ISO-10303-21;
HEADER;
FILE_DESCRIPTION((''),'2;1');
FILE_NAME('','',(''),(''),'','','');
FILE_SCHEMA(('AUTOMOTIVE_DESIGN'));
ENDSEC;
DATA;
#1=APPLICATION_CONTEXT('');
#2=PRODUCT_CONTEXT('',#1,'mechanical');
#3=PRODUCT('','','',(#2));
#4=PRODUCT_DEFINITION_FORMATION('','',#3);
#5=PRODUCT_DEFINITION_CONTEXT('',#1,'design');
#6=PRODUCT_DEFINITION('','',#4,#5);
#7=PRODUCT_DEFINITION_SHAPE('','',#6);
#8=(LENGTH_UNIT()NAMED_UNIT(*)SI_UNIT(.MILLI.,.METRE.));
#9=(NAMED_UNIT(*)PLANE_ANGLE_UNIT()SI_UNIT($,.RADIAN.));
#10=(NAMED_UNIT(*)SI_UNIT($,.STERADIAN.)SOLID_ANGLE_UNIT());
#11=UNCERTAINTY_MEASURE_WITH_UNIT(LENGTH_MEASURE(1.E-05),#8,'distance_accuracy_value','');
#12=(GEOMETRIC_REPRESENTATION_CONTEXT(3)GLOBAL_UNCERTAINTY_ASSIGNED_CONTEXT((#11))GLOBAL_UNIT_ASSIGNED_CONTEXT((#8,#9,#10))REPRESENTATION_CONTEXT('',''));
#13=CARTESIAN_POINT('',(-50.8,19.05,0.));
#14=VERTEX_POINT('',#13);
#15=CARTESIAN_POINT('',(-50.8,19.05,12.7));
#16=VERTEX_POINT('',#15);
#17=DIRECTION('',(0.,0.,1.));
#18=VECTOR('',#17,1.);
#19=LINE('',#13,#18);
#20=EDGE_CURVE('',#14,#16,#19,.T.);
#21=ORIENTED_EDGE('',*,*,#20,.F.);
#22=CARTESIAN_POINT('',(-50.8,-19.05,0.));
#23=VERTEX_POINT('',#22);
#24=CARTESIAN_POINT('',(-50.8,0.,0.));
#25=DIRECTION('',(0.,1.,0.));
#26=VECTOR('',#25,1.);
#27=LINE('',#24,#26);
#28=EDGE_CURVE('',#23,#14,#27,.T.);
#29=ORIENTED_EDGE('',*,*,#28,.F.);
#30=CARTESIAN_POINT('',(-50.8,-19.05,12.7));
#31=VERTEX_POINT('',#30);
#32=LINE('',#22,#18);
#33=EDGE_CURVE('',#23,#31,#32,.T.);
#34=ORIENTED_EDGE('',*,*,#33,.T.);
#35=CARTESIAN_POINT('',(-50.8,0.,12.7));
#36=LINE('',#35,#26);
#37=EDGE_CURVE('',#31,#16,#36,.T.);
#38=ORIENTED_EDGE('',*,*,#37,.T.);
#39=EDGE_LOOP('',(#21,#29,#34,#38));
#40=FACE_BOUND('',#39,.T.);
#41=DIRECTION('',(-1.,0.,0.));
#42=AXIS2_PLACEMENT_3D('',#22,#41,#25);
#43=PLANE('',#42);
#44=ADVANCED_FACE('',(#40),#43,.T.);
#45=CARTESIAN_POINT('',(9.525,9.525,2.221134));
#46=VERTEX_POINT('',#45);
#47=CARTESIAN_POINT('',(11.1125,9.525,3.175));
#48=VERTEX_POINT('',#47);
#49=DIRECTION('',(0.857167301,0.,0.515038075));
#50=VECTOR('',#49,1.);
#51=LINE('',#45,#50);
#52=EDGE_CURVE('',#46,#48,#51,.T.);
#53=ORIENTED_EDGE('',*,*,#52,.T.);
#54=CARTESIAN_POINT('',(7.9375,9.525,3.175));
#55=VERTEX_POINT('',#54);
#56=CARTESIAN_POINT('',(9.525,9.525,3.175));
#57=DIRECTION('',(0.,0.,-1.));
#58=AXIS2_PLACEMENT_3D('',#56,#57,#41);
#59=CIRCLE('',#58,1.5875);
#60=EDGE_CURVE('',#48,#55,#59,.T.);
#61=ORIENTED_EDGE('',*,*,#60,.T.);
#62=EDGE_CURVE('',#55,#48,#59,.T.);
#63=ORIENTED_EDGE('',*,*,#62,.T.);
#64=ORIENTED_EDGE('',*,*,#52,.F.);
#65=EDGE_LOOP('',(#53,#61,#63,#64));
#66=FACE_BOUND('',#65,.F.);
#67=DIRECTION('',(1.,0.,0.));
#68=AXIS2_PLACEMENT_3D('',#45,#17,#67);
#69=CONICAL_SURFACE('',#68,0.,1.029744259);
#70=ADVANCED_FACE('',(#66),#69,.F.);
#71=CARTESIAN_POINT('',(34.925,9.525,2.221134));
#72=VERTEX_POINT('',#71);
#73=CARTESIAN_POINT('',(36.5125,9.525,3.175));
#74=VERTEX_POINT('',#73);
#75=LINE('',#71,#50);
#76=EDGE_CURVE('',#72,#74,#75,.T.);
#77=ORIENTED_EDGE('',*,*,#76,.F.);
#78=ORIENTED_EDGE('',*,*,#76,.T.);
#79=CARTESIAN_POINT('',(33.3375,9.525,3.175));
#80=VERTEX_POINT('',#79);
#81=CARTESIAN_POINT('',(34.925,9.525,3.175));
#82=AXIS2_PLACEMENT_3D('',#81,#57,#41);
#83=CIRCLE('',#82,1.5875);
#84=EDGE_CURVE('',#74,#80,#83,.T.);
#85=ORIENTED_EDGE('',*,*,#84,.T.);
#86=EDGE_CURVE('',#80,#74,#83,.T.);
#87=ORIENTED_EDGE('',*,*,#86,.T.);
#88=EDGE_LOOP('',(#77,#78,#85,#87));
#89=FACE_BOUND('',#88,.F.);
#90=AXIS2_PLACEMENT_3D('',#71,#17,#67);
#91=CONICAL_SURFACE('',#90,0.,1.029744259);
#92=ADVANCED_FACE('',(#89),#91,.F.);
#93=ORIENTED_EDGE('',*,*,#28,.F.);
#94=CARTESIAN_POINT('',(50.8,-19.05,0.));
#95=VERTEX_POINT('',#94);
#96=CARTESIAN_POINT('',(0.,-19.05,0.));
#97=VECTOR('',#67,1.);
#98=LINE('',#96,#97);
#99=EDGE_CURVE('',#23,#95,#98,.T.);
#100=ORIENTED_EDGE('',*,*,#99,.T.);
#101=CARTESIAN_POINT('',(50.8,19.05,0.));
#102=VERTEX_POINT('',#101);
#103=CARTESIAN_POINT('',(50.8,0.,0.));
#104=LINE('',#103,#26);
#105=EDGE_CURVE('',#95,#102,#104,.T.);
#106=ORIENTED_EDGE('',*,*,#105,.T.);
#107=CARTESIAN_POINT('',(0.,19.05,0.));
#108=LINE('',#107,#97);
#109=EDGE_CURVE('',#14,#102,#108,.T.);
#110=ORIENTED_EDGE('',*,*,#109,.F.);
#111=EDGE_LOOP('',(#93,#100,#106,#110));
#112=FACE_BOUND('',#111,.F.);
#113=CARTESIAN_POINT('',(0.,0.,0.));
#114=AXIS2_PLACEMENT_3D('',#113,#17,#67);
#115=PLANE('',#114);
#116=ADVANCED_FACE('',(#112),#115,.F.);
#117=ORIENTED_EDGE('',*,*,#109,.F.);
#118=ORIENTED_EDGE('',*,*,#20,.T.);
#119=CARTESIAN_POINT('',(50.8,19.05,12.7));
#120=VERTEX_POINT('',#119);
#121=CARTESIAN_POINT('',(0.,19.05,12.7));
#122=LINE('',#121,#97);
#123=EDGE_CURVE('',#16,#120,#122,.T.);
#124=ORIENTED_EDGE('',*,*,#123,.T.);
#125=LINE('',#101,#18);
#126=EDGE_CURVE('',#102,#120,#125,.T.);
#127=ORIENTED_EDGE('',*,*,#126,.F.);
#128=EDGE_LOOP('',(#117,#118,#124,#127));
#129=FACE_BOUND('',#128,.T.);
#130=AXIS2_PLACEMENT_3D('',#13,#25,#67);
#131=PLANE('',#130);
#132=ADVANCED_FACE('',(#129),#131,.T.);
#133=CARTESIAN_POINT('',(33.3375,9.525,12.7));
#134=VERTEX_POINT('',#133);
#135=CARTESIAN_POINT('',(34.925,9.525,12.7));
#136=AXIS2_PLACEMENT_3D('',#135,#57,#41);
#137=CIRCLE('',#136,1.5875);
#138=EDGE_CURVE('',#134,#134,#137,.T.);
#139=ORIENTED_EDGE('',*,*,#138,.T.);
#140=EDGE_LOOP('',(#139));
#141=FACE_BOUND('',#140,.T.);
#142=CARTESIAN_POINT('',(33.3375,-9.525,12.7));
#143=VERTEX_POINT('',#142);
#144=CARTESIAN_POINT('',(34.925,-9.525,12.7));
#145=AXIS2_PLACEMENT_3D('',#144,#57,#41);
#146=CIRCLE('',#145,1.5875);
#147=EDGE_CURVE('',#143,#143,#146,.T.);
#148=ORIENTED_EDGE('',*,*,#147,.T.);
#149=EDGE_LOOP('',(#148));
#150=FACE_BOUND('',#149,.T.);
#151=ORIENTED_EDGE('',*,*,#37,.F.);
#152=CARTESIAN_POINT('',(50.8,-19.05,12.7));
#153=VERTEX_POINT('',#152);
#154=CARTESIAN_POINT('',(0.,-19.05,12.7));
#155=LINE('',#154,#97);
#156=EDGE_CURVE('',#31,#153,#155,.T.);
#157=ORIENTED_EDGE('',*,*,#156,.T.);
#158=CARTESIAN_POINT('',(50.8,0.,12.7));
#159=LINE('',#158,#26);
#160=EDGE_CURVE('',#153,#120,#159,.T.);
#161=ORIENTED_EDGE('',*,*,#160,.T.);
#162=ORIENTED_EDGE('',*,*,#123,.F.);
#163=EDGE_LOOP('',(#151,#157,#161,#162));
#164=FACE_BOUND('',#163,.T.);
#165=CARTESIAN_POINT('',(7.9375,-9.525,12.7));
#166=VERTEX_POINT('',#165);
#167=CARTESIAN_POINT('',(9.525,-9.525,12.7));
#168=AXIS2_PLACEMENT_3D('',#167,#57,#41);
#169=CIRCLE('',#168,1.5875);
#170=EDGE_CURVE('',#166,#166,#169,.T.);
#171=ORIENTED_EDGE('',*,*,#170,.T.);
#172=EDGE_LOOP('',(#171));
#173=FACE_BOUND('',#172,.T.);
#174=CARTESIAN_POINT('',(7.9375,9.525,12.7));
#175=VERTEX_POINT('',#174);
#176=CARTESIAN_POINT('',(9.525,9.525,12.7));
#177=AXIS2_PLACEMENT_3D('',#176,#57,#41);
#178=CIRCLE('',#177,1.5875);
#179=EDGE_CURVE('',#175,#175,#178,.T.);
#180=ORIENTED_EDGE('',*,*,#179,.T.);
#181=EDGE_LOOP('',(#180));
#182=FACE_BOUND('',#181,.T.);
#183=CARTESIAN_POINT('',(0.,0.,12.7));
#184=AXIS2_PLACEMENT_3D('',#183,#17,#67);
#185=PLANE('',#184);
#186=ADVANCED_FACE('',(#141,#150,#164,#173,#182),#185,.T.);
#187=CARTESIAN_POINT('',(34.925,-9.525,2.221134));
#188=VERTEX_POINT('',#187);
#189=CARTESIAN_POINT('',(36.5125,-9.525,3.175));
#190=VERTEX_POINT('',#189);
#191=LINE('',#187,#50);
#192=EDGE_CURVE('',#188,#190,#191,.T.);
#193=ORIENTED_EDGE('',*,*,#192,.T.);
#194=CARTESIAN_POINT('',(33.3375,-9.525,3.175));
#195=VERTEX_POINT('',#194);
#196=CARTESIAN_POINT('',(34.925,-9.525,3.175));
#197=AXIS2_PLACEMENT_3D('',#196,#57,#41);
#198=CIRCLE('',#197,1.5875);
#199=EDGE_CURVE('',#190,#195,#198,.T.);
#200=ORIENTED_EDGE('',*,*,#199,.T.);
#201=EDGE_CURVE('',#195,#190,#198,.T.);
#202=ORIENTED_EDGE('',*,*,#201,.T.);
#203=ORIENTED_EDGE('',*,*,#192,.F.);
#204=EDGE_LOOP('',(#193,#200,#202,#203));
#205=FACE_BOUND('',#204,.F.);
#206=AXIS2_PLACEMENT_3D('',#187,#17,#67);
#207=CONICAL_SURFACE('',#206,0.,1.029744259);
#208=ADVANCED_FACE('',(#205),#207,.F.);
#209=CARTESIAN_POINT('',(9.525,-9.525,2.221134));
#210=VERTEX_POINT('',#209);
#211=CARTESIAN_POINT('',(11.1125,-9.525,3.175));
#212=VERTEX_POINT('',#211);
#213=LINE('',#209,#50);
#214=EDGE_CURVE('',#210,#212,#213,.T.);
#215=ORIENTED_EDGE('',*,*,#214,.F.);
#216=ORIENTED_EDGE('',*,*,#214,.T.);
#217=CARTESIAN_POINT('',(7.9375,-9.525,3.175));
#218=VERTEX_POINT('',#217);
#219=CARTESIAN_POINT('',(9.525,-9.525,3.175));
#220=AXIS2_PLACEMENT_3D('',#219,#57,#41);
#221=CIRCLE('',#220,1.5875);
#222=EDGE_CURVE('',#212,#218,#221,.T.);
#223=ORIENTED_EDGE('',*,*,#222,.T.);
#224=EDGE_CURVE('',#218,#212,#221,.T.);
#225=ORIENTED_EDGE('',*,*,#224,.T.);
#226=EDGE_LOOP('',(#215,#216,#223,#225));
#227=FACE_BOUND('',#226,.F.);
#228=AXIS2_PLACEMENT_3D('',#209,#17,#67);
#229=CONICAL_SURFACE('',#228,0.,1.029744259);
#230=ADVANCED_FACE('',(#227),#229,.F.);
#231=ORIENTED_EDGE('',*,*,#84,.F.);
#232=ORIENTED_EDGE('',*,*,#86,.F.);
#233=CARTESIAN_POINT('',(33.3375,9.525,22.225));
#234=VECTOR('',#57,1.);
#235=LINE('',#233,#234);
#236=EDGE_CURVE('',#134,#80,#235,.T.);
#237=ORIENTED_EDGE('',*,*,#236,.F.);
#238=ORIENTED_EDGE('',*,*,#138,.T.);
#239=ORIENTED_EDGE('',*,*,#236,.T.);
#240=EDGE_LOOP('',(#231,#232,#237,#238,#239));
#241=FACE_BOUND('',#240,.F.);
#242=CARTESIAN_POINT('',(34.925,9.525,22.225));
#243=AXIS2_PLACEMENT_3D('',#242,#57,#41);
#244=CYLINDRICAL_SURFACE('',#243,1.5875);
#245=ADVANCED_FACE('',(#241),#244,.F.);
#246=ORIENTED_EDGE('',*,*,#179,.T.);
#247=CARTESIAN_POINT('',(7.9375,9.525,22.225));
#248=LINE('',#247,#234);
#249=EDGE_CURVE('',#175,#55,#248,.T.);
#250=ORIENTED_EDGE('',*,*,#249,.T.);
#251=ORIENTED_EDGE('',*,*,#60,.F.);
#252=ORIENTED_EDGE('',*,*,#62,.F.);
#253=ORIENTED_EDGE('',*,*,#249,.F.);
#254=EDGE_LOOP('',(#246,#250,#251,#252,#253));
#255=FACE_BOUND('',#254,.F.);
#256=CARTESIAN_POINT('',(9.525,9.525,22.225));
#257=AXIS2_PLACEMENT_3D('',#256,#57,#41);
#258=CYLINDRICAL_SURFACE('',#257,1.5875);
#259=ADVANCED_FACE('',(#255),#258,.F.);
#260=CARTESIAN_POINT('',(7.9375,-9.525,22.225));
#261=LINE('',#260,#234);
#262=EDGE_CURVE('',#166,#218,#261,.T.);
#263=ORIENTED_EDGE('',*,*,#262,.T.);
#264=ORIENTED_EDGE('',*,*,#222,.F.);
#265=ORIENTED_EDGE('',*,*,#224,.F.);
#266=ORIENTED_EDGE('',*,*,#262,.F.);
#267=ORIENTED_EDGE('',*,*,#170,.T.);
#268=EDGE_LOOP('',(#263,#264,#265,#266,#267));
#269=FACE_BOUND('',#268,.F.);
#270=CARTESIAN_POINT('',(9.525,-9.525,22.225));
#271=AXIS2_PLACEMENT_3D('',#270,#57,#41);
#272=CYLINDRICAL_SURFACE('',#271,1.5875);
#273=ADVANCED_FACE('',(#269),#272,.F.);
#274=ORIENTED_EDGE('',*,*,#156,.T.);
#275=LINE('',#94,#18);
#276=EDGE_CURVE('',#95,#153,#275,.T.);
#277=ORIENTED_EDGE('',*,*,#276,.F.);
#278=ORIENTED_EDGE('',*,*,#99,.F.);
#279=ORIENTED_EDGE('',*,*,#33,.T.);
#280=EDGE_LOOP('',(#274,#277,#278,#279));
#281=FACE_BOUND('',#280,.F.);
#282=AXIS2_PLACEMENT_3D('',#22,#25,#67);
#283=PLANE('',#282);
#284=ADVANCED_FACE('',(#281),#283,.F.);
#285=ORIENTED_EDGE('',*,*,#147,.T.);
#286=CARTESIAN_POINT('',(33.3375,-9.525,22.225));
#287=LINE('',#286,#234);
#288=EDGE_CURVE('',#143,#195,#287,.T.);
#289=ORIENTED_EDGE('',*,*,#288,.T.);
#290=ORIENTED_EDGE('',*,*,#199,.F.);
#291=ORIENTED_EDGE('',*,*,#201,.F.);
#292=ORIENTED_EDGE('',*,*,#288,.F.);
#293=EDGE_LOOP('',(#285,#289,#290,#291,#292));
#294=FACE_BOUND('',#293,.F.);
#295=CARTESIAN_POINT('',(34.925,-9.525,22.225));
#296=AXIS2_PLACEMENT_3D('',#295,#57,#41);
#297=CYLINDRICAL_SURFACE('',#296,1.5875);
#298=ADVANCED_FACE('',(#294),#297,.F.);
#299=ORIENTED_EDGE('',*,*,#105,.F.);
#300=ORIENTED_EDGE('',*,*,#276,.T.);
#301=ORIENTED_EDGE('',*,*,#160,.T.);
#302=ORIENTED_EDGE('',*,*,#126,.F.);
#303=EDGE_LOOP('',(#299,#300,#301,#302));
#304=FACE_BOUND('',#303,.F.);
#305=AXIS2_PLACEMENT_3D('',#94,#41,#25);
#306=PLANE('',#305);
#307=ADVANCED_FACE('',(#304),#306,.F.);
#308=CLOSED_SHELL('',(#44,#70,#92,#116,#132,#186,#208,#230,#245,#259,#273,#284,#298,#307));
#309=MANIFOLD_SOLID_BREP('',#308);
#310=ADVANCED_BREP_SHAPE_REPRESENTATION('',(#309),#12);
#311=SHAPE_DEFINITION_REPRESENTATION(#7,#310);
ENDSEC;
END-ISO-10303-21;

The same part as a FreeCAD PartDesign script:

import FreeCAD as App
import Part
import Sketcher
from FreeCAD import Vector
Q = App.Units.Quantity


def add_polygon(sketch, points):
    """Adds a closed chain of lines whose ends are joined by coincident constraints."""
    first, n = sketch.GeometryCount, len(points)
    for a, b in zip(points, points[1:] + points[:1]):
        sketch.addGeometry(Part.LineSegment(App.Vector(*a, 0), App.Vector(*b, 0)), False)
    for i in range(n):
        sketch.addConstraint(Sketcher.Constraint("Coincident", first + i, 2, first + (i + 1) % n, 1))

doc = App.newDocument("Part")
body = doc.addObject("PartDesign::Body", "Body")

# Sketch on XY plane
sketch1 = body.newObject("Sketcher::SketchObject", "Sketch")
sketch1.AttachmentSupport = (doc.getObject("XY_Plane"), [""])
sketch1.MapMode = "FlatFace"
add_polygon(sketch1, [(-51, 19), (-51, -19), (51, -19), (51, 19)])  # lines 0-3
sketch1.addConstraint(Sketcher.Constraint("Vertical", 0))
sketch1.addConstraint(Sketcher.Constraint("Horizontal", 1))
sketch1.addConstraint(Sketcher.Constraint("Vertical", 2))
sketch1.addConstraint(Sketcher.Constraint("Horizontal", 3))
sketch1.addConstraint(Sketcher.Constraint("Symmetric", 0, 2, 2, 2, -1, 1))
sketch1.addConstraint(Sketcher.Constraint("DistanceX", 1, 1, 1, 2, Q("4 in")))
sketch1.addConstraint(Sketcher.Constraint("DistanceY", 0, 2, 0, 1, Q("1.5 in")))
pad1 = body.newObject("PartDesign::Pad", "Pad")
pad1.Profile = sketch1
pad1.Length = Q("0.5 in")

# Sketch on XY plane
sketch2 = body.newObject("Sketcher::SketchObject", "Sketch001")
sketch2.AttachmentSupport = (doc.getObject("XY_Plane"), [""])
sketch2.MapMode = "FlatFace"
sketch2.AttachmentOffset = App.Placement(Vector(0, 0, 0.5 * 25.4), App.Rotation())
sketch2.addGeometry(Part.Circle(Vector(9.5, 9.5, 0), Vector(0, 0, 1), 1.6), False)
sketch2.addGeometry(Part.Circle(Vector(34.9, 9.5, 0), Vector(0, 0, 1), 1.6), False)
sketch2.addGeometry(Part.Circle(Vector(34.9, -9.5, 0), Vector(0, 0, 1), 1.6), False)
sketch2.addGeometry(Part.Circle(Vector(9.5, -9.5, 0), Vector(0, 0, 1), 1.6), False)
sketch2.addConstraint(Sketcher.Constraint("Equal", 0, 1))
sketch2.addConstraint(Sketcher.Constraint("Equal", 1, 2))
sketch2.addConstraint(Sketcher.Constraint("Equal", 2, 3))
sketch2.addConstraint(Sketcher.Constraint("Symmetric", 1, 3, 2, 3, -1))
sketch2.addConstraint(Sketcher.Constraint("Symmetric", 0, 3, 3, 3, -1))
sketch2.addConstraint(Sketcher.Constraint("Horizontal", 0, 3, 1, 3))
sketch2.addConstraint(Sketcher.Constraint("Diameter", 0, Q("0.125 in")))
sketch2.addConstraint(Sketcher.Constraint("DistanceX", 0, 3, 1, 3, Q("1 in")))
sketch2.addConstraint(Sketcher.Constraint("DistanceY", 2, 3, 1, 3, Q("0.75 in")))
sketch2.addConstraint(Sketcher.Constraint("DistanceX", -1, 1, 0, 3, Q("0.375 in")))
doc.recompute()
hole = body.newObject("PartDesign::Hole", "Hole")
hole.Profile = sketch2
hole.ThreadType = "None"
hole.Diameter = Q("0.125 in")
hole.DepthType = "Dimension"
hole.Depth = Q("0.375 in")
hole.DrillPoint = "Angled"
hole.DrillPointAngle = 118

doc.recompute()
